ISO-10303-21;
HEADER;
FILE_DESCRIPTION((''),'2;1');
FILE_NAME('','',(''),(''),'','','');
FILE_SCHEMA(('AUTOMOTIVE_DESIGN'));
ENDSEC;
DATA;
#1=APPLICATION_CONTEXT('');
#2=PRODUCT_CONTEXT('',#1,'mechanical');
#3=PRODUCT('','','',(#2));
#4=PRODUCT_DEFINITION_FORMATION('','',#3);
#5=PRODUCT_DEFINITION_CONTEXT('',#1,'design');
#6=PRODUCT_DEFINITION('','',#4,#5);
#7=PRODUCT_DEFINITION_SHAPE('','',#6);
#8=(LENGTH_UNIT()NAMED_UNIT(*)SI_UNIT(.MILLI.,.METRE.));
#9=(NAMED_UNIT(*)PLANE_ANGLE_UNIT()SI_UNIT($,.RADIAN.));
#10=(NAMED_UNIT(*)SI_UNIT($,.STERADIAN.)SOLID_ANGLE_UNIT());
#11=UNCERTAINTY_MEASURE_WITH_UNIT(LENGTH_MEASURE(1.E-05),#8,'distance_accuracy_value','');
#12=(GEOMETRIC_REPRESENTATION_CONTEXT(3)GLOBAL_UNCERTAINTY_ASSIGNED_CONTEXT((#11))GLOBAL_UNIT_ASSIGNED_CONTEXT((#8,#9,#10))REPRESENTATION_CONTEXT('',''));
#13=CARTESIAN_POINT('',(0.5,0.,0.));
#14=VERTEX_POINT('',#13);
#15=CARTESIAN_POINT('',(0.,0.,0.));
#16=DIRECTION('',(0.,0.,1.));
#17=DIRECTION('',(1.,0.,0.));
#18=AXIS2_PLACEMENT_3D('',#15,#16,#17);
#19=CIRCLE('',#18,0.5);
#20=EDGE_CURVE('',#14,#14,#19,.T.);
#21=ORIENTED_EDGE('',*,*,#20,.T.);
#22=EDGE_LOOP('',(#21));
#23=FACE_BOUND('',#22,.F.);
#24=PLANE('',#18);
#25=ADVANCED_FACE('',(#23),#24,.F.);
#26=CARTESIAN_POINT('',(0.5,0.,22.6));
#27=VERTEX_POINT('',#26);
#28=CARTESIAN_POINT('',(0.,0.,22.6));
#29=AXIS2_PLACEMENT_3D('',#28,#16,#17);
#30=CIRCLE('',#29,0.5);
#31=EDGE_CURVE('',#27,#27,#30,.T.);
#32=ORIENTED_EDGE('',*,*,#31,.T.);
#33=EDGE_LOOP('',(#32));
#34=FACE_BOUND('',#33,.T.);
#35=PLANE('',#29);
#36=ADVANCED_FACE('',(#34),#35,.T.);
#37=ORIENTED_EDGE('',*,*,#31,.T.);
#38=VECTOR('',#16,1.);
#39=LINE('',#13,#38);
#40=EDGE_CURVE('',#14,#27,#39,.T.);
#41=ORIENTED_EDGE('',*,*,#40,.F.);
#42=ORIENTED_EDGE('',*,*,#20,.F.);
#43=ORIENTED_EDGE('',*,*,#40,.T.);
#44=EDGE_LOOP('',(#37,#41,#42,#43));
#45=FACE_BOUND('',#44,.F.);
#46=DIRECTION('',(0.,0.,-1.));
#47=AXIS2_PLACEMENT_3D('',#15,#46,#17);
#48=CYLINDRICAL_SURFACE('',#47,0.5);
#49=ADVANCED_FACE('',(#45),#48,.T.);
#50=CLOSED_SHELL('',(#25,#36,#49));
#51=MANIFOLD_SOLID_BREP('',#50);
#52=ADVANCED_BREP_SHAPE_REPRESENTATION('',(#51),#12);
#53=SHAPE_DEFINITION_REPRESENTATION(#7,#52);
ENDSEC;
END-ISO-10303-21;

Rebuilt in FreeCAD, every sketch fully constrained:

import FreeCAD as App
import Part
import Sketcher
from FreeCAD import Vector
Q = App.Units.Quantity

doc = App.newDocument("Part")
body = doc.addObject("PartDesign::Body", "Body")

sketch1 = body.newObject("Sketcher::SketchObject", "Sketch")
sketch1.AttachmentSupport = (doc.getObject("XY_Plane"), [""])
sketch1.MapMode = "FlatFace"
sketch1.addGeometry(Part.Circle(Vector(0, 0, 0), Vector(0, 0, 1), 0.5), False)
sketch1.addConstraint(Sketcher.Constraint("Coincident", 0, 3, -1, 1))
sketch1.addConstraint(Sketcher.Constraint("Diameter", 0, Q("1 mm")))
pad1 = body.newObject("PartDesign::Pad", "Pad")
pad1.Profile = sketch1
pad1.Length = 22.6

doc.recompute()
